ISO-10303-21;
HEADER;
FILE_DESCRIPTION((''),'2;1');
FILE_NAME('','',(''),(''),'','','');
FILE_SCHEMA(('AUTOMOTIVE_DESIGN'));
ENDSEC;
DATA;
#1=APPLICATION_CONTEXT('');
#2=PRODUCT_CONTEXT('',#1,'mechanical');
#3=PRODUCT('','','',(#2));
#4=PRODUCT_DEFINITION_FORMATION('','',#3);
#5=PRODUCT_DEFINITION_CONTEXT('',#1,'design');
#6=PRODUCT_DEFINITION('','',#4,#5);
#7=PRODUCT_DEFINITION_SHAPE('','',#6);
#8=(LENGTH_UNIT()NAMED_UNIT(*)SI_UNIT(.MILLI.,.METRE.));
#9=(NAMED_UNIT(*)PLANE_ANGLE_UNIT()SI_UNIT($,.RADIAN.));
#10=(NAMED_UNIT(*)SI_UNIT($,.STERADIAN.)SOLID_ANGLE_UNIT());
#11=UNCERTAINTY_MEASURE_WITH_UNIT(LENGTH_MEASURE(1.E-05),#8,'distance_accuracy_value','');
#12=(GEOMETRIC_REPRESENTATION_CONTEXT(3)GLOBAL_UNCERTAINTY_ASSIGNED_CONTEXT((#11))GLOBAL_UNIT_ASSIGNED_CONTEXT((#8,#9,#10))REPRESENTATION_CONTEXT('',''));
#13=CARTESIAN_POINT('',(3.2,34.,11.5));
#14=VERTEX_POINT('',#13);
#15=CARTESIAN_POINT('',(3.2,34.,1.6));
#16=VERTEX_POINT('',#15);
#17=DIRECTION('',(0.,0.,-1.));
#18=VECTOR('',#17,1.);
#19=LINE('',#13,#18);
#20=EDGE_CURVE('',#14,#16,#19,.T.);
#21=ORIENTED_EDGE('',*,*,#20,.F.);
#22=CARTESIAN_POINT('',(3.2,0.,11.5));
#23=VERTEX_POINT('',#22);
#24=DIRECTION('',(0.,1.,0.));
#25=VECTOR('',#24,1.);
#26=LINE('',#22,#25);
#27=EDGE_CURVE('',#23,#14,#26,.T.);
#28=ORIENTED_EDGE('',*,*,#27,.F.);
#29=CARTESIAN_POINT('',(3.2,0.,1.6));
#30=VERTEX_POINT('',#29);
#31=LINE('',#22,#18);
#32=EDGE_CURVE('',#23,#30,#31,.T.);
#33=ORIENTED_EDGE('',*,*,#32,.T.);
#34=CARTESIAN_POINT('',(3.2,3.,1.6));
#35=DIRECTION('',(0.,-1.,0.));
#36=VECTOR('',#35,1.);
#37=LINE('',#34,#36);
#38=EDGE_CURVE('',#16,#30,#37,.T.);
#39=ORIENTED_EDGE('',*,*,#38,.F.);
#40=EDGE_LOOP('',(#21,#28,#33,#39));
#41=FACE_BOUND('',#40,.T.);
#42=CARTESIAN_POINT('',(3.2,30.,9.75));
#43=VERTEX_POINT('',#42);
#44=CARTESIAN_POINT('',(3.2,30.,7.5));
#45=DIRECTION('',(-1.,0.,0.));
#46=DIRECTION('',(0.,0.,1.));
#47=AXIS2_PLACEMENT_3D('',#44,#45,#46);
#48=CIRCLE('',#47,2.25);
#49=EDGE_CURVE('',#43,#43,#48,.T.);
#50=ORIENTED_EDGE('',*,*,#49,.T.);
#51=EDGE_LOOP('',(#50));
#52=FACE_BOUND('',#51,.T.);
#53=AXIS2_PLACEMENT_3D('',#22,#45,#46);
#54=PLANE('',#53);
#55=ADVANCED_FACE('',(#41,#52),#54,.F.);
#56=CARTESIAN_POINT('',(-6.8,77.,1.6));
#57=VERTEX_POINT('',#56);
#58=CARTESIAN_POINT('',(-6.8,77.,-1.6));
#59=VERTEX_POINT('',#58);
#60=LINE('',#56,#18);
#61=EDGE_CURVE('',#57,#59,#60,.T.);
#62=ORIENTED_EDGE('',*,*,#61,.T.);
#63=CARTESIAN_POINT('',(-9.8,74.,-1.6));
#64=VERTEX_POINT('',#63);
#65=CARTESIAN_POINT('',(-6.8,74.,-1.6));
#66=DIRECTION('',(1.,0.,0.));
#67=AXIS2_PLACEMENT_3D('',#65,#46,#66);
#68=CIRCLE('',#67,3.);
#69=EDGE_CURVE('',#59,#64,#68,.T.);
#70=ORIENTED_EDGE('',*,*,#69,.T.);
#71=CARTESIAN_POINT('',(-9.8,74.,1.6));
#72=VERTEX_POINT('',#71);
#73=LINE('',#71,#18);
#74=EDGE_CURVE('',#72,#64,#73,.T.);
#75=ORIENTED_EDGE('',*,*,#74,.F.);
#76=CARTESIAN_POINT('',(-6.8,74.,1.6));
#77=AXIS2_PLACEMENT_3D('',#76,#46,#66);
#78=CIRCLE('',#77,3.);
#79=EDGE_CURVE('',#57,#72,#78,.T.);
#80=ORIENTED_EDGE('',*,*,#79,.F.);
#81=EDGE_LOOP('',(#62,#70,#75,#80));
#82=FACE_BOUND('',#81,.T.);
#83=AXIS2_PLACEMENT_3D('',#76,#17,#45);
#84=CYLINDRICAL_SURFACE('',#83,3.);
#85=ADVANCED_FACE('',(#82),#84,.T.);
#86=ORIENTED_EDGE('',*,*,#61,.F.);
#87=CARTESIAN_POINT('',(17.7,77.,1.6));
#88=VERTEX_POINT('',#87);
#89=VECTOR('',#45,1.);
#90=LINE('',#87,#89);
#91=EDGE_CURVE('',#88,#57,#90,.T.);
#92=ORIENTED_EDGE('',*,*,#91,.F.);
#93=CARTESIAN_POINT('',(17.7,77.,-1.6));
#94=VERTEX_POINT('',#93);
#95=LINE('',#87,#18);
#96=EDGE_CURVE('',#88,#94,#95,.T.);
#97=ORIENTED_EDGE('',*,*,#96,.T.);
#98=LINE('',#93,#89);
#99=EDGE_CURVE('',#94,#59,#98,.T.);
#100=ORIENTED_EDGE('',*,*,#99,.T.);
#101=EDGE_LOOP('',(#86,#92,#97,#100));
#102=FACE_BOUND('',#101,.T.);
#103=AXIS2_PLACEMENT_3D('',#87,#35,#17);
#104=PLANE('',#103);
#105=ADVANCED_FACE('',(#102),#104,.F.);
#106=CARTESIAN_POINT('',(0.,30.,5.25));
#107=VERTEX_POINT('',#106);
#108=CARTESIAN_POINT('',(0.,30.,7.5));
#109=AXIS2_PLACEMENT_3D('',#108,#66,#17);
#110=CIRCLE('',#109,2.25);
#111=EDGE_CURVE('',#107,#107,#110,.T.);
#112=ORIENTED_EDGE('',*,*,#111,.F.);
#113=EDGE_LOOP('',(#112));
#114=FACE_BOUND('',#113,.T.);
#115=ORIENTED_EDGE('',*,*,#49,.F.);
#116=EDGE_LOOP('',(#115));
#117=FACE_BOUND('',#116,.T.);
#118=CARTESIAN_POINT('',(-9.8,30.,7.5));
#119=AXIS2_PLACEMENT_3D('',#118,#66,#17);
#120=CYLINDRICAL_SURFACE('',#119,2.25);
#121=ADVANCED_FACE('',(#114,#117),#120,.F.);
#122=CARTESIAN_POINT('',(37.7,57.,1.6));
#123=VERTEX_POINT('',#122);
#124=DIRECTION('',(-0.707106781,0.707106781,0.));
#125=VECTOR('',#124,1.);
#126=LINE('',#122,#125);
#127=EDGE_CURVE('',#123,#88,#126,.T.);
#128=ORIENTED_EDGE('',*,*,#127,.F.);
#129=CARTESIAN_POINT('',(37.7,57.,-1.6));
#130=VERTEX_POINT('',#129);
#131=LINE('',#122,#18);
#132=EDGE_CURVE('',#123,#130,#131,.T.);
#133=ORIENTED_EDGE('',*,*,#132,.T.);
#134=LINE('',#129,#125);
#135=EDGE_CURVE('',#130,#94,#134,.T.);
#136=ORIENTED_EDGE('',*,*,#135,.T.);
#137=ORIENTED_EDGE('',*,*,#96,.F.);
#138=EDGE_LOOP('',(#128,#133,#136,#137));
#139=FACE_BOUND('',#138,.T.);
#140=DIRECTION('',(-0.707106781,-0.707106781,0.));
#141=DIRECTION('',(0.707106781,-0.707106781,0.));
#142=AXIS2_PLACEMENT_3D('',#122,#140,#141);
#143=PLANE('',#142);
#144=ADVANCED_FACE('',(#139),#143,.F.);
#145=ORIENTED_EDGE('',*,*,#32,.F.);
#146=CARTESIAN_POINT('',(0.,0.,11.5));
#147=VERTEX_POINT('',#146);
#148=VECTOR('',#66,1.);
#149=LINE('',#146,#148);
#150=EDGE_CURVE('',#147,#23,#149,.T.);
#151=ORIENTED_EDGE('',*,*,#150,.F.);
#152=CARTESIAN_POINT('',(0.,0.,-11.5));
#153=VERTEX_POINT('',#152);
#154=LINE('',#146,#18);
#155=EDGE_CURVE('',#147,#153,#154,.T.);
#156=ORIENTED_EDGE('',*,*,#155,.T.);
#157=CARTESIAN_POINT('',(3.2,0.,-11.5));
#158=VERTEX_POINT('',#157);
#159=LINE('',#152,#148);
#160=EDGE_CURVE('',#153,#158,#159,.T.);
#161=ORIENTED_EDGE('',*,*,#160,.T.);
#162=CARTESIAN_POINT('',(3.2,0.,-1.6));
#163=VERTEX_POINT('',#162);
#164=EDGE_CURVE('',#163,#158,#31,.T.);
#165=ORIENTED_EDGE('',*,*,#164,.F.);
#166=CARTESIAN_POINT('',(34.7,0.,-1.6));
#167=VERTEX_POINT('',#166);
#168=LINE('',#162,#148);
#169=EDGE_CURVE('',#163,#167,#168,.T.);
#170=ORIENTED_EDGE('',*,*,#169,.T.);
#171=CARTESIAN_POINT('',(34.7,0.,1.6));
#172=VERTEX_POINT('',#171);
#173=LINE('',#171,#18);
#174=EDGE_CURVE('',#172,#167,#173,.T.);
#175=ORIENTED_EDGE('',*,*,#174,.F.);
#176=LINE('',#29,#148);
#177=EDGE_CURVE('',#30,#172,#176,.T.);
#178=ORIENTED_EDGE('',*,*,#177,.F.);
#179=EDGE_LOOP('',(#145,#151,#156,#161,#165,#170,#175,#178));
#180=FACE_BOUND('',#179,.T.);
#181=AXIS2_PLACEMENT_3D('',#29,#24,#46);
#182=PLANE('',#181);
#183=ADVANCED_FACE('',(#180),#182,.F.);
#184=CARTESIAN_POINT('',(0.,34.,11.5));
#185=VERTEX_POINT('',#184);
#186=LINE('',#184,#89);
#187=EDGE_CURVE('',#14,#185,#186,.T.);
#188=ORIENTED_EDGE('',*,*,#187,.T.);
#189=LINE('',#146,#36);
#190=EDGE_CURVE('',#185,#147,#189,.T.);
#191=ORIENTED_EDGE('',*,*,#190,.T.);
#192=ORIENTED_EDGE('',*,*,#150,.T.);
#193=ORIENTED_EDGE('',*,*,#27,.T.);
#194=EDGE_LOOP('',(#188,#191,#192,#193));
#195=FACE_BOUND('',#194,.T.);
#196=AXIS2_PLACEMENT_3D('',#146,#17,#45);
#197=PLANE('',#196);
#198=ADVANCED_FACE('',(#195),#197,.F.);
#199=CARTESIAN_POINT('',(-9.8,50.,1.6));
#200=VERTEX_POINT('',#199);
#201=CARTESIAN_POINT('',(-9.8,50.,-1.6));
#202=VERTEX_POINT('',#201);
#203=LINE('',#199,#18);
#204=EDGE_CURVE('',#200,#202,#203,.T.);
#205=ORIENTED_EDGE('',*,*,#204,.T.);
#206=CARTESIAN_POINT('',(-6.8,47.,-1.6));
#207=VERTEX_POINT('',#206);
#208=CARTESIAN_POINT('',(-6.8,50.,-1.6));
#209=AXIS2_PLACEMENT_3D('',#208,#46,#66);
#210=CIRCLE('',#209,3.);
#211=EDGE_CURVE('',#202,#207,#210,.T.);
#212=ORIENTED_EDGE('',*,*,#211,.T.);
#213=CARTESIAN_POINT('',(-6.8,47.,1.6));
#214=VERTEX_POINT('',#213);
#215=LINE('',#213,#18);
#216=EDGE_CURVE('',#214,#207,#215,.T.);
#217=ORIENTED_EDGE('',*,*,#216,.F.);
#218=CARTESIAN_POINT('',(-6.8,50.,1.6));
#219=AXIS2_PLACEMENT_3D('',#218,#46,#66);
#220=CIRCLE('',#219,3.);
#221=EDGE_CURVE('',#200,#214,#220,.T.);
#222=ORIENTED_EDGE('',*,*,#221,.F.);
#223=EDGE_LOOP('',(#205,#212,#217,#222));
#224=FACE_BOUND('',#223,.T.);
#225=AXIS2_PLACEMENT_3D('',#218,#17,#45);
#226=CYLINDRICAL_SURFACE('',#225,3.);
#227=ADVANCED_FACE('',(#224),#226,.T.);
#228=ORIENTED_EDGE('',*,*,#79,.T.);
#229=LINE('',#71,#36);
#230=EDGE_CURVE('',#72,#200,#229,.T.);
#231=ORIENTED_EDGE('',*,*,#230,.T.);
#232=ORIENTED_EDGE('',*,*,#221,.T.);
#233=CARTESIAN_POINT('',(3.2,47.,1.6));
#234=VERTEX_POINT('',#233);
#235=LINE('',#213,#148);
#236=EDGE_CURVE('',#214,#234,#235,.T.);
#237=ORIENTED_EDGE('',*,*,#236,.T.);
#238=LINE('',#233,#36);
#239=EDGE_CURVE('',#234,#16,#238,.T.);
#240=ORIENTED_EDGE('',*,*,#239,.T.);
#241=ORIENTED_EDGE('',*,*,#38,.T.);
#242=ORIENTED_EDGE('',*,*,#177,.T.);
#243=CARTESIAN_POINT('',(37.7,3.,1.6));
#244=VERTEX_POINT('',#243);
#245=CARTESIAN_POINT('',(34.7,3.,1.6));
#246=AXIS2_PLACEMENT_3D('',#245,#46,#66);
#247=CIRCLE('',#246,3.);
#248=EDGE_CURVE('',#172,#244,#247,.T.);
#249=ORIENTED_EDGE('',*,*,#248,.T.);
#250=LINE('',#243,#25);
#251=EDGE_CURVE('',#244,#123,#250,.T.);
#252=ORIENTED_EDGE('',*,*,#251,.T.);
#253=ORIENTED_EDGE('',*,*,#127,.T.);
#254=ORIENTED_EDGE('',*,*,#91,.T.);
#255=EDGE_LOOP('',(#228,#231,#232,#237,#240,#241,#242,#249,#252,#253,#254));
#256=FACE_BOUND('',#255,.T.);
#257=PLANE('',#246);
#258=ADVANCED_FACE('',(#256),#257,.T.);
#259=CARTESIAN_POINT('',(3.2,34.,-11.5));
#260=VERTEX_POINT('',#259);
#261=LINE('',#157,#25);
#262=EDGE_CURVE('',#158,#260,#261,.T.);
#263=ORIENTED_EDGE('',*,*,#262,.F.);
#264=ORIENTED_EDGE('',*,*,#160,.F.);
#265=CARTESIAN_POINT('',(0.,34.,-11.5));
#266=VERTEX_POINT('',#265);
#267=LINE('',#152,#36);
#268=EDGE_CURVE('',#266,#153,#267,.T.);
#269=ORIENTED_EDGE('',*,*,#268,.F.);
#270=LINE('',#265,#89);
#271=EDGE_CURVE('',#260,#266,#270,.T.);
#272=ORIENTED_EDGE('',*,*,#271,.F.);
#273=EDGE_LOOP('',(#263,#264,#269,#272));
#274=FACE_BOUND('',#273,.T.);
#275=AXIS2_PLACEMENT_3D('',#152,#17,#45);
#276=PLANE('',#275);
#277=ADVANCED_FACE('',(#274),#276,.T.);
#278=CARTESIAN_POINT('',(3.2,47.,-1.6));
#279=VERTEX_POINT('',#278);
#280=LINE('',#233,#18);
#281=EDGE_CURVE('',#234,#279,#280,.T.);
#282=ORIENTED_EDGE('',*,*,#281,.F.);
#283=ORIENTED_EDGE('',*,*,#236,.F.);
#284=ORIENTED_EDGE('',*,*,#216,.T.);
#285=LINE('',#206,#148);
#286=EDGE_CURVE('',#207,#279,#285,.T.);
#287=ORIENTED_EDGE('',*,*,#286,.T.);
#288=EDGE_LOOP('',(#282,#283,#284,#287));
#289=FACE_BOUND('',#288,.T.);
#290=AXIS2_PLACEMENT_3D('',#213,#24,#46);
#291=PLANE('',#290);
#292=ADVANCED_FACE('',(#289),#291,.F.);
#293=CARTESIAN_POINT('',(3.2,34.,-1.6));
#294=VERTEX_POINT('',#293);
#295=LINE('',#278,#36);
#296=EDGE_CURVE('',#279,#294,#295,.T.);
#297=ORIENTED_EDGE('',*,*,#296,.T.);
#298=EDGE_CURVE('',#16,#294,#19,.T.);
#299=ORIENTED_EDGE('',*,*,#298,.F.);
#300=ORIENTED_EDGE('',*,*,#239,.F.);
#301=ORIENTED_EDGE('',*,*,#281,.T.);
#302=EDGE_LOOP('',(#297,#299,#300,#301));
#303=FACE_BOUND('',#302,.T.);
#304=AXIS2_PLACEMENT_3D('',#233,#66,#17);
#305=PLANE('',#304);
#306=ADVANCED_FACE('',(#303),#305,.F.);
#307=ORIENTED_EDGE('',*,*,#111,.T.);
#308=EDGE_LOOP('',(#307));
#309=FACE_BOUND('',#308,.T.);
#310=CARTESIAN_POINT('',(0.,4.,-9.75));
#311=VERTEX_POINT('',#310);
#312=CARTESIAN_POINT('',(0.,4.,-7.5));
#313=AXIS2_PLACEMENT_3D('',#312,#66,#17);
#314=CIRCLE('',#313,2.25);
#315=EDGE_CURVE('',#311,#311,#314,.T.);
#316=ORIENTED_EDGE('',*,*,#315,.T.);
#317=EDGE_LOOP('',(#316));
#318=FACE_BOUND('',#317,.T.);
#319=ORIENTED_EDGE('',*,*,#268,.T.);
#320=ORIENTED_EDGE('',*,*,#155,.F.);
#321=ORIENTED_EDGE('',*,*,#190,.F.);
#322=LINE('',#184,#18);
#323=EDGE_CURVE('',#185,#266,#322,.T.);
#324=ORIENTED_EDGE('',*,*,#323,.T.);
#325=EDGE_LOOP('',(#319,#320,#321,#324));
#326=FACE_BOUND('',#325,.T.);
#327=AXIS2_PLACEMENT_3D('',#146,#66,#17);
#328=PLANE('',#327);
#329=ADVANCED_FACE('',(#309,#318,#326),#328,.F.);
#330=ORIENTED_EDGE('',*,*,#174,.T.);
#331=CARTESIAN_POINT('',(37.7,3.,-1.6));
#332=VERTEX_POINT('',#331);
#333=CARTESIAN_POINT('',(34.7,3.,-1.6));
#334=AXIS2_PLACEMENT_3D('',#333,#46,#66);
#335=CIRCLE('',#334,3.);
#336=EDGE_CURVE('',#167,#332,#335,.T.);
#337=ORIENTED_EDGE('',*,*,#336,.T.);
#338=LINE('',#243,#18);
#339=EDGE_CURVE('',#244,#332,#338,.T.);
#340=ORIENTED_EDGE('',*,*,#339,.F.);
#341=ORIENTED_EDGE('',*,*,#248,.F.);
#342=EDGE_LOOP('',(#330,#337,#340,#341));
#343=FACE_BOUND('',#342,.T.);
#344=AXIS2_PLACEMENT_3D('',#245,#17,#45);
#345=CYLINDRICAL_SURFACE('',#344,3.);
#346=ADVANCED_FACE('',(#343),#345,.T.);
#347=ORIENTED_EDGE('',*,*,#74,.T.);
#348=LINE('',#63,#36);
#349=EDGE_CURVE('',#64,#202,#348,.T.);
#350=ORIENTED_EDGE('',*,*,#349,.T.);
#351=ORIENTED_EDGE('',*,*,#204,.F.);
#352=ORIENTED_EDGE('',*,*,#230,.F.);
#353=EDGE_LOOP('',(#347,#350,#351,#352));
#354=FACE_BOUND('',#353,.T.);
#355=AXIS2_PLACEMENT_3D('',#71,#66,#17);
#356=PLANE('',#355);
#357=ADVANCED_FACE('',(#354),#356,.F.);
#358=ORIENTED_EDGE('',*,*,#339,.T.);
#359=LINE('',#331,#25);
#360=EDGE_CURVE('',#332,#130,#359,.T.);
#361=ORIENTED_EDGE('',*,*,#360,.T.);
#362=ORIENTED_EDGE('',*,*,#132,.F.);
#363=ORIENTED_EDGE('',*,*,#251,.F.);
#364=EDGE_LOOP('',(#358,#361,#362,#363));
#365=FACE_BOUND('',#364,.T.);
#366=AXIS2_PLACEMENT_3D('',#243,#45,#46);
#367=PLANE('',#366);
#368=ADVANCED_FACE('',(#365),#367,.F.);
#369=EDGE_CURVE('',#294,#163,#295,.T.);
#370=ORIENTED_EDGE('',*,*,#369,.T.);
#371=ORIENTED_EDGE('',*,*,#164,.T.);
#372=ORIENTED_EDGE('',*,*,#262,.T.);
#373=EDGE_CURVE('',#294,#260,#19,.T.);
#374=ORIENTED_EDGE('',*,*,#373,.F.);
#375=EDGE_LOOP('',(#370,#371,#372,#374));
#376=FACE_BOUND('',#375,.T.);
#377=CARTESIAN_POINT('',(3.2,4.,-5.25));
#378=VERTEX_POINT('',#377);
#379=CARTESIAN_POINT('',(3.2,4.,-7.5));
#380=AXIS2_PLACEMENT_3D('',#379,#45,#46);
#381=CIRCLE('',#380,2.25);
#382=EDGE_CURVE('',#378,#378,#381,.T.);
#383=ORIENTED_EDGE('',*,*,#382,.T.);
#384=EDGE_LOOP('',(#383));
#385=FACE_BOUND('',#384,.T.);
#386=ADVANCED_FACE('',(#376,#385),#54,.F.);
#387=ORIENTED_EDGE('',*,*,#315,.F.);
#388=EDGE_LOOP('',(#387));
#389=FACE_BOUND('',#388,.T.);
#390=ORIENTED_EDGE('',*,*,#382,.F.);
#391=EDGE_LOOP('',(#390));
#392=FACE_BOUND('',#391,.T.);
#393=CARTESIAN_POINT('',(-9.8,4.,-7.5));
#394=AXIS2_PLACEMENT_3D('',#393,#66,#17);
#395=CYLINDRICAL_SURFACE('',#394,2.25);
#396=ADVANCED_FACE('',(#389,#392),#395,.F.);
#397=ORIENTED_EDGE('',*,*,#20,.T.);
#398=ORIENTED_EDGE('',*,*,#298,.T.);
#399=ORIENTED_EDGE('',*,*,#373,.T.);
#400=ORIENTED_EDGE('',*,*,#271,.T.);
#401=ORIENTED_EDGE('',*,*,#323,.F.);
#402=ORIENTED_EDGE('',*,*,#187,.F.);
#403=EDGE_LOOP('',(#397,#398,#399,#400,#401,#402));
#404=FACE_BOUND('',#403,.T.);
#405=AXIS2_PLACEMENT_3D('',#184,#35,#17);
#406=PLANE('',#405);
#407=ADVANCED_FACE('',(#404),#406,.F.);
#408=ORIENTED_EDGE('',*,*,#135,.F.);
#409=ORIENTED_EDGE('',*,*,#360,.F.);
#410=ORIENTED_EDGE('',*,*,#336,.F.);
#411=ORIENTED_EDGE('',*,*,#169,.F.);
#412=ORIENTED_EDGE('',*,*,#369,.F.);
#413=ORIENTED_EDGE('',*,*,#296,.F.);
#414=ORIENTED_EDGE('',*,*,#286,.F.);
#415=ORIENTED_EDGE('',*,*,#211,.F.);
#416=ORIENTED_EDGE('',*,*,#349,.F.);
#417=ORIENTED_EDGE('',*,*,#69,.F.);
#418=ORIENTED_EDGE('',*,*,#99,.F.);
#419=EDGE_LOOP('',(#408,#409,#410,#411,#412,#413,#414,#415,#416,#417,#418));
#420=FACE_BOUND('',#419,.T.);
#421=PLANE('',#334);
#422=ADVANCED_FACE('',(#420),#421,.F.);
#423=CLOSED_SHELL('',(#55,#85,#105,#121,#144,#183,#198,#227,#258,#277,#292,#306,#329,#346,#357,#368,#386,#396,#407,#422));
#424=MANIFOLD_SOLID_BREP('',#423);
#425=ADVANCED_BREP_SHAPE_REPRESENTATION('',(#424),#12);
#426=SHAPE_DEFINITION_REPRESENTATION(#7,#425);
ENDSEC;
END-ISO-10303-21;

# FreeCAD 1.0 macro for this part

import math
import FreeCAD as App
import Part
import Sketcher

V = App.Vector
Q = App.Units.Quantity

doc = App.newDocument("Part")
body = doc.addObject("PartDesign::Body", "Body")

sketch1 = body.newObject("Sketcher::SketchObject", "Sketch")
sketch1.AttachmentSupport = (doc.getObject("XY_Plane"), [""])
sketch1.MapMode = "FlatFace"
sketch1.addGeometry([
    Part.LineSegment(V(3.2, 0, 0), V(34.7, 0, 0)),
    Part.ArcOfCircle(Part.Circle(V(34.7, 3, 0), V(0, 0, 1), 3), math.radians(-90), math.radians(0)),
    Part.LineSegment(V(37.7, 3, 0), V(37.7, 57, 0)),
    Part.LineSegment(V(37.7, 57, 0), V(17.7, 77, 0)),
    Part.LineSegment(V(17.7, 77, 0), V(-6.8, 77, 0)),
    Part.ArcOfCircle(Part.Circle(V(-6.8, 74, 0), V(0, 0, 1), 3), math.radians(90), math.radians(180)),
    Part.LineSegment(V(-9.8, 74, 0), V(-9.8, 50, 0)),
    Part.ArcOfCircle(Part.Circle(V(-6.8, 50, 0), V(0, 0, 1), 3), math.radians(180), math.radians(270)),
    Part.LineSegment(V(-6.8, 47, 0), V(3.2, 47, 0)),
    Part.LineSegment(V(3.2, 47, 0), V(3.2, 0, 0)),
], False)
sketch1.addConstraint([
    Sketcher.Constraint("Tangent", 0, 2, 1, 1),
    Sketcher.Constraint("Tangent", 1, 2, 2, 1),
    Sketcher.Constraint("Coincident", 2, 2, 3, 1),
    Sketcher.Constraint("Coincident", 3, 2, 4, 1),
    Sketcher.Constraint("Tangent", 4, 2, 5, 1),
    Sketcher.Constraint("Tangent", 5, 2, 6, 1),
    Sketcher.Constraint("Tangent", 6, 2, 7, 1),
    Sketcher.Constraint("Tangent", 7, 2, 8, 1),
    Sketcher.Constraint("Coincident", 8, 2, 9, 1),
    Sketcher.Constraint("Coincident", 9, 2, 0, 1),
    Sketcher.Constraint("Horizontal", 0),
    Sketcher.Constraint("Vertical", 2),
    Sketcher.Constraint("Horizontal", 4),
    Sketcher.Constraint("Vertical", 6),
    Sketcher.Constraint("Horizontal", 8),
    Sketcher.Constraint("Vertical", 9),
    Sketcher.Constraint("Equal", 1, 5),
    Sketcher.Constraint("Equal", 5, 7),
    Sketcher.Constraint("PointOnObject", 0, 2, -1),
    Sketcher.Constraint("Radius", 1, 3.0),
    Sketcher.Constraint("DistanceX", 8, 1, 8, 2, 10.0),
    Sketcher.Constraint("DistanceY", 2, 1, 2, 2, 54.0),
    Sketcher.Constraint("DistanceY", 6, 2, 6, 1, 24.0),
    Sketcher.Constraint("DistanceY", 9, 2, 9, 1, 47.0),
    Sketcher.Constraint("Angle", 3, Q("135 deg")),
    Sketcher.Constraint("DistanceX", 0, 1, 0, 2, 31.5),
    Sketcher.Constraint("DistanceX", -1, 1, 1, 3, 34.7),
])
pad1 = body.newObject("PartDesign::Pad", "Pad")
pad1.Profile = sketch1
pad1.Type = "TwoLengths"
pad1.Length = 1.6
pad1.Length2 = 1.6

sketch2 = body.newObject("Sketcher::SketchObject", "Sketch001")
sketch2.AttachmentSupport = (doc.getObject("XY_Plane"), [""])
sketch2.MapMode = "FlatFace"
sketch2.addGeometry([
    Part.LineSegment(V(0, 34, 0), V(0, 0, 0)),
    Part.LineSegment(V(0, 0, 0), V(3.2, 0, 0)),
    Part.LineSegment(V(3.2, 0, 0), V(3.2, 34, 0)),
    Part.LineSegment(V(3.2, 34, 0), V(0, 34, 0)),
], False)
sketch2.addConstraint([
    Sketcher.Constraint("Coincident", 0, 2, 1, 1),
    Sketcher.Constraint("Coincident", 1, 2, 2, 1),
    Sketcher.Constraint("Coincident", 2, 2, 3, 1),
    Sketcher.Constraint("Coincident", 3, 2, 0, 1),
    Sketcher.Constraint("Vertical", 0),
    Sketcher.Constraint("Horizontal", 1),
    Sketcher.Constraint("Vertical", 2),
    Sketcher.Constraint("Horizontal", 3),
    Sketcher.Constraint("Coincident", 0, 2, -1, 1),
    Sketcher.Constraint("DistanceY", 0, 2, 0, 1, 34.0),
    Sketcher.Constraint("DistanceX", 1, 1, 1, 2, 3.2),
])
pad2 = body.newObject("PartDesign::Pad", "Pad001")
pad2.Profile = sketch2
pad2.Type = "TwoLengths"
pad2.Length = 11.5
pad2.Length2 = 11.5

sketch3 = body.newObject("Sketcher::SketchObject", "Sketch002")
sketch3.AttachmentSupport = (doc.getObject("YZ_Plane"), [""])
sketch3.MapMode = "FlatFace"
sketch3.addGeometry([
    Part.Circle(V(30, 7.5, 0), V(0, 0, 1), 2.2),
    Part.Circle(V(4, -7.5, 0), V(0, 0, 1), 2.2),
], False)
sketch3.addConstraint([
    Sketcher.Constraint("Equal", 0, 1),
    Sketcher.Constraint("Diameter", 0, 4.5),
    Sketcher.Constraint("DistanceX", -1, 1, 0, 3, 30.0),
    Sketcher.Constraint("DistanceX", -1, 1, 1, 3, 4.0),
    Sketcher.Constraint("DistanceY", 1, 3, 0, 3, 15.0),
    Sketcher.Constraint("DistanceY", -1, 1, 0, 3, 7.5),
])
pocket1 = body.newObject("PartDesign::Pocket", "Pocket")
pocket1.Profile = sketch3
pocket1.Type = "ThroughAll"
pocket1.Midplane = True

doc.recompute()
